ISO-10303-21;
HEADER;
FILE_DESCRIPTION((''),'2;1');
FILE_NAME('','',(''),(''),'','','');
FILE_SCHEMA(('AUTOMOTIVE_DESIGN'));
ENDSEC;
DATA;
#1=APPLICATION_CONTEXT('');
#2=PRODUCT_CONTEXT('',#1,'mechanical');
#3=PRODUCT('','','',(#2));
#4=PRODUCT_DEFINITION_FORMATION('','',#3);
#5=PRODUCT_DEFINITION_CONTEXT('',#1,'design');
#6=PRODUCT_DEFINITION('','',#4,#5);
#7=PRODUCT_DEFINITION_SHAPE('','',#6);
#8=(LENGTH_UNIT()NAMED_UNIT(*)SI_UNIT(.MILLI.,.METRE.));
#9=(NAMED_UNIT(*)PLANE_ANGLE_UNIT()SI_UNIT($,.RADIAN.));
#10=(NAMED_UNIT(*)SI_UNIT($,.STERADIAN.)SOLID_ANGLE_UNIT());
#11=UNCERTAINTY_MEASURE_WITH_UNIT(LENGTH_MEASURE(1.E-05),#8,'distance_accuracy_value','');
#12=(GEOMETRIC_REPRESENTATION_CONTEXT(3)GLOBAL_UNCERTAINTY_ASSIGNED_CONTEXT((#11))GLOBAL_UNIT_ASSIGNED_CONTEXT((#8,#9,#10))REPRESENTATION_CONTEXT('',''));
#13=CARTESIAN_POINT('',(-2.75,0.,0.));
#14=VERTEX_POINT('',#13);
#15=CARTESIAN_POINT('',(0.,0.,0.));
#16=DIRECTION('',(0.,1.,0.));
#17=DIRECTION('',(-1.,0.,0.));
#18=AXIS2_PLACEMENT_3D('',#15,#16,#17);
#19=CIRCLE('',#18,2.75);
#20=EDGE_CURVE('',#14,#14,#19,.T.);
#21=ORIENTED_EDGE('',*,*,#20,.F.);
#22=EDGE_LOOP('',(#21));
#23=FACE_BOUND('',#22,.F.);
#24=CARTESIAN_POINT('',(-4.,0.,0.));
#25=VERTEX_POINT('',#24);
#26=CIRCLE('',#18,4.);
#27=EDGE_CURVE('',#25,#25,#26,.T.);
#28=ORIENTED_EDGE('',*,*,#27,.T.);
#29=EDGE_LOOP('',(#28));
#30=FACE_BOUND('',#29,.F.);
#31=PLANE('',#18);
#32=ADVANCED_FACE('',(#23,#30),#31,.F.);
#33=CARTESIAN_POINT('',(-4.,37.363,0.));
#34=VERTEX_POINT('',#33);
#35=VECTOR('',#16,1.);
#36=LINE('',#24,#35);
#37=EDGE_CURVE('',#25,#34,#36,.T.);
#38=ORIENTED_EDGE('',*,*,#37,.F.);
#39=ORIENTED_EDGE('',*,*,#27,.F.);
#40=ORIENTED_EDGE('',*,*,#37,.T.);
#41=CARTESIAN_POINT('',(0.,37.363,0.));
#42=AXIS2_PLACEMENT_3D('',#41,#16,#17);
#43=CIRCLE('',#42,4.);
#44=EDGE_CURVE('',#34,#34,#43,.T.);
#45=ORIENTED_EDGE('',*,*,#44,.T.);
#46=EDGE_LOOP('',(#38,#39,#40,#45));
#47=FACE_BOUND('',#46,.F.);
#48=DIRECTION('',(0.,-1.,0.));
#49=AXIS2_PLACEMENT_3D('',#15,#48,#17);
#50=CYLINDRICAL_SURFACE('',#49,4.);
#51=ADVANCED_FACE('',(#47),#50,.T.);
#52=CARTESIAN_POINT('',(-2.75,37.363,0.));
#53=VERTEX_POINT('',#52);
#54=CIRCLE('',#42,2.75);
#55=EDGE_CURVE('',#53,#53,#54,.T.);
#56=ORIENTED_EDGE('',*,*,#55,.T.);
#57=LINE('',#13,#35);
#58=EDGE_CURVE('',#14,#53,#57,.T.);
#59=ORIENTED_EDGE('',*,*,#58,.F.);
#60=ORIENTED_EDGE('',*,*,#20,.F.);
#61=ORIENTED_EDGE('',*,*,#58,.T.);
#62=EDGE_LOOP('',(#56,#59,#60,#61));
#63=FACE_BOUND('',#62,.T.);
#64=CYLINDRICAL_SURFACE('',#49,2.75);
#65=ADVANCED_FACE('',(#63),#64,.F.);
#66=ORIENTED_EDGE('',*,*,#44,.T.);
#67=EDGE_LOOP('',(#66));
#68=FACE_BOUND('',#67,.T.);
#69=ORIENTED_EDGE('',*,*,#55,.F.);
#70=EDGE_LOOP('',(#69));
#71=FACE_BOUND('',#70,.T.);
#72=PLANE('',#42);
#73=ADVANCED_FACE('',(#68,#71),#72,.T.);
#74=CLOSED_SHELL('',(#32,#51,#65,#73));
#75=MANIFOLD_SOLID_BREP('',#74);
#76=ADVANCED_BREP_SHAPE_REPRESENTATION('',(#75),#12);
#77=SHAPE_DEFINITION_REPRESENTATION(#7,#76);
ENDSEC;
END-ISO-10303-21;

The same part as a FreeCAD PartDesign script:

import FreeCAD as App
import Part
import Sketcher
from FreeCAD import Vector
Q = App.Units.Quantity

doc = App.newDocument("Part")
body = doc.addObject("PartDesign::Body", "Body")

sketch1 = body.newObject("Sketcher::SketchObject", "Sketch")
sketch1.AttachmentSupport = (doc.getObject("XZ_Plane"), [""])
sketch1.MapMode = "FlatFace"
sketch1.addGeometry(Part.Circle(Vector(0, 0, 0), Vector(0, 0, 1), 4), False)
sketch1.addGeometry(Part.Circle(Vector(0, 0, 0), Vector(0, 0, 1), 2.75), False)
sketch1.addConstraint(Sketcher.Constraint("Coincident", 0, 3, -1, 1))
sketch1.addConstraint(Sketcher.Constraint("Coincident", 1, 3, -1, 1))
sketch1.addConstraint(Sketcher.Constraint("Diameter", 0, Q("8 mm")))
sketch1.addConstraint(Sketcher.Constraint("Diameter", 1, Q("5.5 mm")))
pad1 = body.newObject("PartDesign::Pad", "Pad")
pad1.Profile = sketch1
pad1.Length = 37.363
pad1.Reversed = True

doc.recompute()
